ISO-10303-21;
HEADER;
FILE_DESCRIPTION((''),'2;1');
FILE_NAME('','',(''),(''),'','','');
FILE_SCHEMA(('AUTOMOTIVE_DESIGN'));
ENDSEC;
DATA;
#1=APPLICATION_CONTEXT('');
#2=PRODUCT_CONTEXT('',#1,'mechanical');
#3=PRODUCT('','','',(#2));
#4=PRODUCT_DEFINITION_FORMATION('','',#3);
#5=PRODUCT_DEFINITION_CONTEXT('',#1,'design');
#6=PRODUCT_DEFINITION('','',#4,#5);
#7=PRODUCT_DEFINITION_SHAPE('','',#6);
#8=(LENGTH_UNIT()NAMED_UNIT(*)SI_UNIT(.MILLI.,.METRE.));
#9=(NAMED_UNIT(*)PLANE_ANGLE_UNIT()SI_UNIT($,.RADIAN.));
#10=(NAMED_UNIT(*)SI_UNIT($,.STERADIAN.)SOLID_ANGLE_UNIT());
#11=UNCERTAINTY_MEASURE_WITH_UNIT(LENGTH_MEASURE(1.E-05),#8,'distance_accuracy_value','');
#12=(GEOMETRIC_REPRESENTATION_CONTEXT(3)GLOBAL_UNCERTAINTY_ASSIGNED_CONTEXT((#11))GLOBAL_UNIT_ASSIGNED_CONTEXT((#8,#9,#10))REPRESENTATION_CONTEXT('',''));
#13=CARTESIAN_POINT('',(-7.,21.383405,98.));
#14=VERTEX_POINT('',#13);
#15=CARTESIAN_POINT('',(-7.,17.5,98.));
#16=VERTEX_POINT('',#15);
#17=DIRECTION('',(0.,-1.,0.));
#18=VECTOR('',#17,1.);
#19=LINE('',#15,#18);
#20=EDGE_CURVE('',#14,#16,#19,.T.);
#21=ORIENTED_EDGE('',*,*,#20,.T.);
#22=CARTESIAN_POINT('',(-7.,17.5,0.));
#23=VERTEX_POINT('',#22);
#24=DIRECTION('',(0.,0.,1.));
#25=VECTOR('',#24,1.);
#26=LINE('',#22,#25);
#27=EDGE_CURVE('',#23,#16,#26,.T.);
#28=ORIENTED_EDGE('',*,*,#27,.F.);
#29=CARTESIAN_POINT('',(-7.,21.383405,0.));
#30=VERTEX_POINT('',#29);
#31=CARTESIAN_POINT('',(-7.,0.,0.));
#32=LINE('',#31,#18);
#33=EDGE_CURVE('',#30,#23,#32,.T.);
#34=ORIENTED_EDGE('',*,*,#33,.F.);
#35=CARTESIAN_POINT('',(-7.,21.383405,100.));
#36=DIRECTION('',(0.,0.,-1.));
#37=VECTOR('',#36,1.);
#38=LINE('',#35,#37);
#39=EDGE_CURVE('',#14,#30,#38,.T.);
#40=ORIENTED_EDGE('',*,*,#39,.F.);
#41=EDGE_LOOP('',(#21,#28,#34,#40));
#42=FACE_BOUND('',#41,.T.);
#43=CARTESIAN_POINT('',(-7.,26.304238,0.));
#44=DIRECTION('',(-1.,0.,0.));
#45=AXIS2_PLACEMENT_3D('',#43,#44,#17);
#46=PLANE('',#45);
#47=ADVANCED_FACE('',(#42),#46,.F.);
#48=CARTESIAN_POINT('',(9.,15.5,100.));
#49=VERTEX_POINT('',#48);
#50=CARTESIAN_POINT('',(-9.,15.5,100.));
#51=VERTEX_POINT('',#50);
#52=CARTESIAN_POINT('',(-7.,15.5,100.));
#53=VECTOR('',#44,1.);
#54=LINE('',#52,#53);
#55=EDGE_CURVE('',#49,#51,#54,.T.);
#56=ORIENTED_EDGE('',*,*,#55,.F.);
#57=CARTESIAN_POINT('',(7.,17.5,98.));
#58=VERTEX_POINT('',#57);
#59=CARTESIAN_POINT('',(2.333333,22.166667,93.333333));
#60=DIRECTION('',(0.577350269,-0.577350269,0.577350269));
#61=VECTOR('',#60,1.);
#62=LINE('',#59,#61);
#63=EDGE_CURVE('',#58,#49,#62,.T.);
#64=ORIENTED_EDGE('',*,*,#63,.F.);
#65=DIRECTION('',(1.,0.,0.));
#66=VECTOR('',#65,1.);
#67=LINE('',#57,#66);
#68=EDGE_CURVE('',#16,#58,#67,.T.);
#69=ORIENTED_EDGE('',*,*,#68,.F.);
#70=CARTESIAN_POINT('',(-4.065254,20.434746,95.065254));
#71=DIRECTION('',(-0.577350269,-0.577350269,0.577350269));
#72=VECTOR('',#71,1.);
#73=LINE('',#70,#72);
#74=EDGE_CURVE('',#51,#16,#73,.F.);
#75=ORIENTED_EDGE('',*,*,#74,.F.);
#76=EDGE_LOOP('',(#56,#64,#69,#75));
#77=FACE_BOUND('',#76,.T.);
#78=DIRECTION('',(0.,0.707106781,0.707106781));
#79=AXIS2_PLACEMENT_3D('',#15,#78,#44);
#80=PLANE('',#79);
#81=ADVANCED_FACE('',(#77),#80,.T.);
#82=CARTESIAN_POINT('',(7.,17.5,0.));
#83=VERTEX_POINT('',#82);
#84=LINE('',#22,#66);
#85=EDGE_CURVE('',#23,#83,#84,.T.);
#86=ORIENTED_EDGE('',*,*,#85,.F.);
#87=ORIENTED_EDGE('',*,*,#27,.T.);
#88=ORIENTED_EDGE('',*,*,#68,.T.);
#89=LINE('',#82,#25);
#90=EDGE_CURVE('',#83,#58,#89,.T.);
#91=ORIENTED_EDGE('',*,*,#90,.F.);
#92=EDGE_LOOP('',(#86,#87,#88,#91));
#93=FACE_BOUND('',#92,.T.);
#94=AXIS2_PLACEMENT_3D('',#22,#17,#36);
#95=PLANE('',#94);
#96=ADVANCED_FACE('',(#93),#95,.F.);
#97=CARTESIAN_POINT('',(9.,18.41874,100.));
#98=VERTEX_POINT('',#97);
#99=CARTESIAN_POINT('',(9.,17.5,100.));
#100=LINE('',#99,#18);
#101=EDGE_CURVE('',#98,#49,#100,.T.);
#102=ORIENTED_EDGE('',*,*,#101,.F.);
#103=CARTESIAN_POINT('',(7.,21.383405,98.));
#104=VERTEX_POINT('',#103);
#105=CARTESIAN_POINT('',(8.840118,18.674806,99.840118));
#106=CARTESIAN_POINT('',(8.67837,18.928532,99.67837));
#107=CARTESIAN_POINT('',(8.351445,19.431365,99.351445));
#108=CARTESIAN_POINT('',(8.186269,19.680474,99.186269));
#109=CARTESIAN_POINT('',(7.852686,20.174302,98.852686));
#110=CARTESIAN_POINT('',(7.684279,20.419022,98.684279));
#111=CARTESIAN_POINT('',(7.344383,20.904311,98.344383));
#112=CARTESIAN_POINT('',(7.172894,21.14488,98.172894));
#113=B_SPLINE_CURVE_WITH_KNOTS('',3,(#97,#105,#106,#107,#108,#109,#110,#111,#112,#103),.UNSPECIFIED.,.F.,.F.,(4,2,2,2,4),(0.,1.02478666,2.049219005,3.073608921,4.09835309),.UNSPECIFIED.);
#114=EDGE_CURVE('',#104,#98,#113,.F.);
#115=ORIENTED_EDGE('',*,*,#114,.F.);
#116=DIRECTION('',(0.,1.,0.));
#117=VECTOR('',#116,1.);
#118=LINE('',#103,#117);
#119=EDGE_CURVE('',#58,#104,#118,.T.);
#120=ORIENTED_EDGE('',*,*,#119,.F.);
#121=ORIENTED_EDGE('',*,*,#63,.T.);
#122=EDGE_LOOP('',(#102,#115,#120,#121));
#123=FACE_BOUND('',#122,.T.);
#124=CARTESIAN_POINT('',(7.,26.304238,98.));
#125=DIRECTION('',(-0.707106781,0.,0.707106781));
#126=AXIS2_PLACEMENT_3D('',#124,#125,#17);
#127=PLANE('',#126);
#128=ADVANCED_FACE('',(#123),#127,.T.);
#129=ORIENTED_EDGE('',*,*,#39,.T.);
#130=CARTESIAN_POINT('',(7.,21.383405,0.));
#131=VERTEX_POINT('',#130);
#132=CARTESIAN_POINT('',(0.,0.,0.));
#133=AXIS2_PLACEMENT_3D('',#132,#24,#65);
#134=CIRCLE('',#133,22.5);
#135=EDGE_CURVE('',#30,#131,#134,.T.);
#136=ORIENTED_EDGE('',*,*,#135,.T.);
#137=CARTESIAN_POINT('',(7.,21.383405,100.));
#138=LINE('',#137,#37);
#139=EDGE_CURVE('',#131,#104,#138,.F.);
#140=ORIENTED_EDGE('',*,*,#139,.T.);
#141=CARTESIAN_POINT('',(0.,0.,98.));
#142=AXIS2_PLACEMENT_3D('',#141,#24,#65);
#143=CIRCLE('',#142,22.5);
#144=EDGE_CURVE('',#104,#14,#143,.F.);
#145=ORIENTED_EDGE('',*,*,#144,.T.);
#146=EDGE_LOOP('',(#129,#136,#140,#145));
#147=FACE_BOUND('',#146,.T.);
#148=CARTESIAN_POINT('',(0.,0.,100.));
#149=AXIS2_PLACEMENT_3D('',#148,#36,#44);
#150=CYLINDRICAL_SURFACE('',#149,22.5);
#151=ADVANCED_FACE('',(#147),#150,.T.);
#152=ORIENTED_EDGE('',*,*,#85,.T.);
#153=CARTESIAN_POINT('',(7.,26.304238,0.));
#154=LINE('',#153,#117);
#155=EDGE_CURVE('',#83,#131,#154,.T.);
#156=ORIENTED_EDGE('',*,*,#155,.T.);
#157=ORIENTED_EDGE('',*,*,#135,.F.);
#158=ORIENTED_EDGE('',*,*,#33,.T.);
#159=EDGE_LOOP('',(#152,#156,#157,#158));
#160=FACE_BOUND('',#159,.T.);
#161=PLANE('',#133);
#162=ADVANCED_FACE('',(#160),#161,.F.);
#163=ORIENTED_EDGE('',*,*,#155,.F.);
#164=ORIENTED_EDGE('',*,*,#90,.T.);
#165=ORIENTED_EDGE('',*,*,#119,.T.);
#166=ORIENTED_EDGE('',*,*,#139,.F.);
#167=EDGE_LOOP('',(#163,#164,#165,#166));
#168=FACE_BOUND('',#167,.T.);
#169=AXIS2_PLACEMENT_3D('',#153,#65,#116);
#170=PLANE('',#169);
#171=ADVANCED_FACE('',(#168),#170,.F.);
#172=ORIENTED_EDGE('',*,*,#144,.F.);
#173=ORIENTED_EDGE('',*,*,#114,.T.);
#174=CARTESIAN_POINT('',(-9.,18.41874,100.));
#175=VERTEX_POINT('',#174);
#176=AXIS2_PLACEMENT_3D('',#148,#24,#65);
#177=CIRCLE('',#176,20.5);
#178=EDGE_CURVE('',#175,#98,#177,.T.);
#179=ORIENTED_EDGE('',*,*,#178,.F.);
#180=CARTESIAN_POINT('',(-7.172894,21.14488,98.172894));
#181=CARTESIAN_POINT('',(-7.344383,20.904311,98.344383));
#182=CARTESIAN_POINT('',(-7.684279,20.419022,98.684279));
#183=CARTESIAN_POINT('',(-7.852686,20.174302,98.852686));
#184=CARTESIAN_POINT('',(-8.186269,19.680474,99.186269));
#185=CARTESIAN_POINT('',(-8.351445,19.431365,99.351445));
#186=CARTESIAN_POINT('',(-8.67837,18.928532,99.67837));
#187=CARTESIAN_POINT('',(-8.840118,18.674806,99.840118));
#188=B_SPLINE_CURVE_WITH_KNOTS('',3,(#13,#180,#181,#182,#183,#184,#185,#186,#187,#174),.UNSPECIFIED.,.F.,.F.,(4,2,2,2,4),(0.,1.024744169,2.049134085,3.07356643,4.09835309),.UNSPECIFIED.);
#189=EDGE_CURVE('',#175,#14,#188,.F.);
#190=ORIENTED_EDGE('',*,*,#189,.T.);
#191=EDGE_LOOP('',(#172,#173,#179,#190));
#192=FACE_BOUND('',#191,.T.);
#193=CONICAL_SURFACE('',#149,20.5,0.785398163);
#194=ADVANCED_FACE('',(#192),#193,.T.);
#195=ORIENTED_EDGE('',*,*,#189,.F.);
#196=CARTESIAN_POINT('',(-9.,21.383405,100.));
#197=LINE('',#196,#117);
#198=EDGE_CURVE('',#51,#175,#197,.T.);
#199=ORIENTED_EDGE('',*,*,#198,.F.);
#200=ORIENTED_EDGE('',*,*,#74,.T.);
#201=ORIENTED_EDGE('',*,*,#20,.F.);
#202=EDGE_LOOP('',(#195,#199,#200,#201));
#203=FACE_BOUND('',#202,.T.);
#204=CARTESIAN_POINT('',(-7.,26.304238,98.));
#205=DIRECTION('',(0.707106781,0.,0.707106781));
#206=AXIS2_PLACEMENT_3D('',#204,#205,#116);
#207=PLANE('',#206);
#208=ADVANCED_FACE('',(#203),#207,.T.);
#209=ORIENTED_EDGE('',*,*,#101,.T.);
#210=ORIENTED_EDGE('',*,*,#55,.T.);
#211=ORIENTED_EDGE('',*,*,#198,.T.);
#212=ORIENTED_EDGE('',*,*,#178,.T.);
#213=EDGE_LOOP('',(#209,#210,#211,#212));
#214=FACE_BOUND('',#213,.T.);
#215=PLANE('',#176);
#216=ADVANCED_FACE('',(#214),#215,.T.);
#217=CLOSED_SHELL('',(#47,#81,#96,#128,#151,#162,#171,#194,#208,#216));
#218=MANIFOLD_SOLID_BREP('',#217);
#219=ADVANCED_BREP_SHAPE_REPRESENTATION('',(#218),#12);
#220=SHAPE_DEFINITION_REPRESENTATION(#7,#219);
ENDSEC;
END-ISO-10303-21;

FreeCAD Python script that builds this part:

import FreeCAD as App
import Part
import Sketcher


def edges_at(feature, points):
    """Names of the edges that pass closest to the given points."""
    edges = feature.Shape.Edges
    near = lambda p: min(range(len(edges)), key=lambda i: edges[i].distToShape(Part.Vertex(*p))[0])
    return sorted({f"Edge{near(p) + 1}" for p in points})


def add_polygon(sketch, points):
    """Adds a closed chain of lines whose ends are joined by coincident constraints."""
    first, n = sketch.GeometryCount, len(points)
    for a, b in zip(points, points[1:] + points[:1]):
        sketch.addGeometry(Part.LineSegment(App.Vector(*a, 0), App.Vector(*b, 0)), False)
    for i in range(n):
        sketch.addConstraint(Sketcher.Constraint("Coincident", first + i, 2, first + (i + 1) % n, 1))

doc = App.newDocument("Part")
body = doc.addObject("PartDesign::Body", "Body")

# Sketch on XY plane
sketch1 = body.newObject("Sketcher::SketchObject", "Sketch")
sketch1.AttachmentSupport = (doc.getObject("XY_Plane"), [""])
sketch1.MapMode = "FlatFace"
sketch1.addGeometry(Part.Circle(App.Vector(0, 0, 0), App.Vector(0, 0, 1), 22.5), False)
sketch1.addConstraint([
    Sketcher.Constraint("Coincident", 0, 3, -1, 1),
    Sketcher.Constraint("Diameter", 0, 45.0),
])
pad1 = body.newObject("PartDesign::Pad", "Pad")
pad1.Profile = sketch1
pad1.Length = 100

# Sketch on XY plane
sketch2 = body.newObject("Sketcher::SketchObject", "Sketch001")
sketch2.AttachmentSupport = (doc.getObject("XY_Plane"), [""])
sketch2.MapMode = "FlatFace"
sketch2.AttachmentOffset = App.Placement(App.Vector(0, 0, 100), App.Rotation())
add_polygon(sketch2, [(-7, 26.304238), (-7, 17.5), (7, 17.5), (7, 26.304238)])  # lines 0-3
sketch2.addConstraint([
    Sketcher.Constraint("Vertical", 0),
    Sketcher.Constraint("Horizontal", 1),
    Sketcher.Constraint("Vertical", 2),
    Sketcher.Constraint("Horizontal", 3),
    Sketcher.Constraint("DistanceX", 1, 1, 1, 2, 14.0),
    Sketcher.Constraint("DistanceX", 0, 2, -1, 1, 7.0),
    Sketcher.Constraint("DistanceY", -1, 1, 0, 2, 17.5),
    Sketcher.Constraint("DistanceY", 0, 2, 0, 1, 8.804238),
])
pocket1 = body.newObject("PartDesign::Pocket", "Pocket")
pocket1.Profile = sketch2
pocket1.Type = "ThroughAll"
doc.recompute()

chamfer = body.newObject("PartDesign::Chamfer", "Chamfer")
chamfer.Base = (pocket1, edges_at(pocket1, [
    (7, 19.442, 100),
    (-7, 19.442, 100),
    (0, 17.5, 100),
    (0, -22.5, 100),
]))
chamfer.Size = 2

doc.recompute()
